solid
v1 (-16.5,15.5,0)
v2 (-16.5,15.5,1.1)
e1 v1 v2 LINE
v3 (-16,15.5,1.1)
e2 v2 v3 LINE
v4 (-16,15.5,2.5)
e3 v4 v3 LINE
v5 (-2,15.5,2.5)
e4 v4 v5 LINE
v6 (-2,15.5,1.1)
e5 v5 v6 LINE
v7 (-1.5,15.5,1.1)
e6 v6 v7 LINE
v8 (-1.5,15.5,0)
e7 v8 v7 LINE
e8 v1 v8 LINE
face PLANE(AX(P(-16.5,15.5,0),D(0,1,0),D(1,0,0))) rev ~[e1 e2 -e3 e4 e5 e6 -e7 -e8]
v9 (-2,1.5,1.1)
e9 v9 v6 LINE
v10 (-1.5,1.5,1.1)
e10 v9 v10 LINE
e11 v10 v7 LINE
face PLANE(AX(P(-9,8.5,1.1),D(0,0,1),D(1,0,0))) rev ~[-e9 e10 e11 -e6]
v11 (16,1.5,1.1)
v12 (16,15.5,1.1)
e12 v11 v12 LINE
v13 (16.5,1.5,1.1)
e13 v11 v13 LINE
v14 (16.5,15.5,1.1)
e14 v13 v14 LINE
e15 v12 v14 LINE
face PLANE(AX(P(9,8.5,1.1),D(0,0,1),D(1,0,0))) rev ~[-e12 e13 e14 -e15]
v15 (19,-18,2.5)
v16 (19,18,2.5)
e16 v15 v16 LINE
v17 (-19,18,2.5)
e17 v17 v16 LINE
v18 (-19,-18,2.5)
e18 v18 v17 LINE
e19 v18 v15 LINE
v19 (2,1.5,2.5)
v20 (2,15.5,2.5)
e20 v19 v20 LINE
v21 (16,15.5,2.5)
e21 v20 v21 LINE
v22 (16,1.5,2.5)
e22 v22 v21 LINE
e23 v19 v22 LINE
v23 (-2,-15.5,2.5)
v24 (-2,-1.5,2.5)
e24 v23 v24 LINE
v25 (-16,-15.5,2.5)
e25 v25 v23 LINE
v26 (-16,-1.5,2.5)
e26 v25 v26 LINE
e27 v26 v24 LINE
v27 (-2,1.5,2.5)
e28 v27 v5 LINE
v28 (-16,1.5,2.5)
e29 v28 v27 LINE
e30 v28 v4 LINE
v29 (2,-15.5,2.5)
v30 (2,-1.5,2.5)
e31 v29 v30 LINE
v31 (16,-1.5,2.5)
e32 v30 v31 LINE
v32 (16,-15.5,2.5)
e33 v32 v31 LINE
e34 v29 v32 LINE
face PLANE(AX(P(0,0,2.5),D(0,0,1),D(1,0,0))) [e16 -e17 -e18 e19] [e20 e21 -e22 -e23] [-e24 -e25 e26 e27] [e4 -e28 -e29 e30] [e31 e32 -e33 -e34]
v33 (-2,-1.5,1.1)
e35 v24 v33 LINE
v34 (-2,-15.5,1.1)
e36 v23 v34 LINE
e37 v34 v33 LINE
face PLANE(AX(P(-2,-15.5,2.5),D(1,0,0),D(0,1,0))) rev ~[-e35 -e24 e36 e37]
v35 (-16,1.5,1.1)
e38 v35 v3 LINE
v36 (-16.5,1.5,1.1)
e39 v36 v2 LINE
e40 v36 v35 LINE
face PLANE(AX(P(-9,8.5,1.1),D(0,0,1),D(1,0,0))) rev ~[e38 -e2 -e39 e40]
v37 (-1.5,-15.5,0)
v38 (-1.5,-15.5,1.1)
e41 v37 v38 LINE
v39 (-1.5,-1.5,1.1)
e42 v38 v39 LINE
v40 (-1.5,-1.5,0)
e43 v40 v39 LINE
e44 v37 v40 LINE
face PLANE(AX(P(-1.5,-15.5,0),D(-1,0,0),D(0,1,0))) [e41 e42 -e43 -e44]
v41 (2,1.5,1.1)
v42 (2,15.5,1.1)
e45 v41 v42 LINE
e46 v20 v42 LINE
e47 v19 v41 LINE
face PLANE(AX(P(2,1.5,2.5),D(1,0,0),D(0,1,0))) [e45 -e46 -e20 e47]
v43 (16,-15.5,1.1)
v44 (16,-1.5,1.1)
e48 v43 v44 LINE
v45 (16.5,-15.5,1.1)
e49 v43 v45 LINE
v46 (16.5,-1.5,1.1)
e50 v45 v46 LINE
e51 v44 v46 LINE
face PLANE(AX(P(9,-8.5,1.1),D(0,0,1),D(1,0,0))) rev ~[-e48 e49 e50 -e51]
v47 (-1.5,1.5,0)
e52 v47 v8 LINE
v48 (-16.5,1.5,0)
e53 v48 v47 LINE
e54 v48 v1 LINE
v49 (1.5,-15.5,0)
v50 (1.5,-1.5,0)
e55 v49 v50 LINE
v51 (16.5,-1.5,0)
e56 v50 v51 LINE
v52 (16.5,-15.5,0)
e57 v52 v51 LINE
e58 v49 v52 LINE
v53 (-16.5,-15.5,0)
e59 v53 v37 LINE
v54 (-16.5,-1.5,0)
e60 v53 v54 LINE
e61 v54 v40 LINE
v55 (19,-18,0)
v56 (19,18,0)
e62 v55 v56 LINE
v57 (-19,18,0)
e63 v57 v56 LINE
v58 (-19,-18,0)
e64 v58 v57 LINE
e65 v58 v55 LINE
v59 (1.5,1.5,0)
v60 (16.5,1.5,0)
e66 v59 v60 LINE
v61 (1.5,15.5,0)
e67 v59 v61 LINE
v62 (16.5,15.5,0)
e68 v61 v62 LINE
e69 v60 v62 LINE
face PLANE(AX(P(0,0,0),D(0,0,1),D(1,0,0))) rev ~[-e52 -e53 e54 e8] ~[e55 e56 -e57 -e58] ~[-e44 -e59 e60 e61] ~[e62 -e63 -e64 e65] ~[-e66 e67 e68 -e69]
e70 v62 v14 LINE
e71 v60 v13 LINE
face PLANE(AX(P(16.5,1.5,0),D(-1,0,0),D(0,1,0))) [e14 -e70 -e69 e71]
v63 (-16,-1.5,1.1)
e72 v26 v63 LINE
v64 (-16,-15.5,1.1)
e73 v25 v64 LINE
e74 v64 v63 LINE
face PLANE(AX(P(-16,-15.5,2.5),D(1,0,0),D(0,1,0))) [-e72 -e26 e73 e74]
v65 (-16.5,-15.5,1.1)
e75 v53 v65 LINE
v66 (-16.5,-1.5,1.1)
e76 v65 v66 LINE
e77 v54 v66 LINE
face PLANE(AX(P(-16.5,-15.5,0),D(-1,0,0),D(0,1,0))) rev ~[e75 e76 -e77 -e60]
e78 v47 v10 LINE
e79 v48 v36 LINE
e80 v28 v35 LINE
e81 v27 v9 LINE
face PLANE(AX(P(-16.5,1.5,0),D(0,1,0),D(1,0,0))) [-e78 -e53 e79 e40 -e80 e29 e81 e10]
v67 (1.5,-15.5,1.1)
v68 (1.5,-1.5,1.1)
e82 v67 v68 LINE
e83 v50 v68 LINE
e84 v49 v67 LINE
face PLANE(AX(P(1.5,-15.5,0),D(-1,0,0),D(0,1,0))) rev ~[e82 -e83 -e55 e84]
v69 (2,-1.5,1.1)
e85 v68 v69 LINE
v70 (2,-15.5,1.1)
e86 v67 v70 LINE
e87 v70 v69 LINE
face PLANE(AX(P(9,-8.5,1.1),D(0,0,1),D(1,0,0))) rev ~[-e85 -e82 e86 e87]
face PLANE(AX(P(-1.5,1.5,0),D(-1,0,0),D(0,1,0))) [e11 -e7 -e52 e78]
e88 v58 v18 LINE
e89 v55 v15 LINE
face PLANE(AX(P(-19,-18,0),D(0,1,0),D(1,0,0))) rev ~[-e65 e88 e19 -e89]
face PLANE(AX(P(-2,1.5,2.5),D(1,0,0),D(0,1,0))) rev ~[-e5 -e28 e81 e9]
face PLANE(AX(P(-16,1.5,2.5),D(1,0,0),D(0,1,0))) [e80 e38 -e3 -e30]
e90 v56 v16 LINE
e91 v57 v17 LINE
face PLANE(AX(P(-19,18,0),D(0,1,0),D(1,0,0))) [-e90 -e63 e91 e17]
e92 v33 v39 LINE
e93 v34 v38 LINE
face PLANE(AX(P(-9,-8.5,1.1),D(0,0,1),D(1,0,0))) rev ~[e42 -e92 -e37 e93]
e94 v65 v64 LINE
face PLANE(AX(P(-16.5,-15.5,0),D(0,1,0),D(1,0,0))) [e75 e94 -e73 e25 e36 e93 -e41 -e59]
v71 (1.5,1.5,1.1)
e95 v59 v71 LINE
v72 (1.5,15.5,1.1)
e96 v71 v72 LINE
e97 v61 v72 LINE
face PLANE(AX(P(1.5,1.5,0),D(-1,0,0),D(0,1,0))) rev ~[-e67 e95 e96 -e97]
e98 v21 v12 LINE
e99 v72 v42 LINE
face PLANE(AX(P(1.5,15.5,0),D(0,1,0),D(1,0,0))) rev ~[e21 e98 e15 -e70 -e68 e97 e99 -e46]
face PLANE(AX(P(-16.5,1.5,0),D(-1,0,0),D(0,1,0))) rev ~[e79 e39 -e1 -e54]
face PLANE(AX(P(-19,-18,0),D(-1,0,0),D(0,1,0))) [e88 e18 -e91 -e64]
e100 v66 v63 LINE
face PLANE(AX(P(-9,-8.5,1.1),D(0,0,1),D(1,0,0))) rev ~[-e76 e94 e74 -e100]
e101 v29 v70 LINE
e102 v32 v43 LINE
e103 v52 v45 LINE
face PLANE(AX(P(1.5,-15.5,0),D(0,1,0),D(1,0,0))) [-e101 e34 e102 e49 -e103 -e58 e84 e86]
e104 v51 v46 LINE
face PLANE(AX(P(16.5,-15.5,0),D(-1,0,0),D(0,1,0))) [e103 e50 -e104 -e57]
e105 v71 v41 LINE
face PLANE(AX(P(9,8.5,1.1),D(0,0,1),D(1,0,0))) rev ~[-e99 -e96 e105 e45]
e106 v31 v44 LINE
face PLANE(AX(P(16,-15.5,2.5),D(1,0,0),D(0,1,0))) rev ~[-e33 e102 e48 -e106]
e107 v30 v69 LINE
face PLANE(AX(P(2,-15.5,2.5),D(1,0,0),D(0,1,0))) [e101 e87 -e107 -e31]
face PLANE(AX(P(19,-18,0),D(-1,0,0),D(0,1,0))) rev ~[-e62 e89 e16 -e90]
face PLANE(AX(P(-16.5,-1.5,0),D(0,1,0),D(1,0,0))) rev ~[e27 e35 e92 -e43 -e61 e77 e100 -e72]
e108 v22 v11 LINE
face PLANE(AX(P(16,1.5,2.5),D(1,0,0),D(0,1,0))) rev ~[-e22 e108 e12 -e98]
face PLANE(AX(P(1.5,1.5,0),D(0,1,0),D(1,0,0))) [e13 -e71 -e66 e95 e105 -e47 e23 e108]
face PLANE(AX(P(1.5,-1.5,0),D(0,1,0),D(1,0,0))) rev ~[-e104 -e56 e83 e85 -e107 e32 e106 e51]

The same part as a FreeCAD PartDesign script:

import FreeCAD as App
import Part
import Sketcher
from FreeCAD import Vector
Q = App.Units.Quantity


def add_polygon(sketch, points):
    """Adds a closed chain of lines whose ends are joined by coincident constraints."""
    first, n = sketch.GeometryCount, len(points)
    for a, b in zip(points, points[1:] + points[:1]):
        sketch.addGeometry(Part.LineSegment(App.Vector(*a, 0), App.Vector(*b, 0)), False)
    for i in range(n):
        sketch.addConstraint(Sketcher.Constraint("Coincident", first + i, 2, first + (i + 1) % n, 1))

doc = App.newDocument("Part")
body = doc.addObject("PartDesign::Body", "Body")

# Sketch on XY plane
sketch1 = body.newObject("Sketcher::SketchObject", "Sketch")
sketch1.AttachmentSupport = (doc.getObject("XY_Plane"), [""])
sketch1.MapMode = "FlatFace"
add_polygon(sketch1, [(-19, 18), (-19, -18), (19, -18), (19, 18)])  # lines 0-3
sketch1.addConstraint(Sketcher.Constraint("Vertical", 0))
sketch1.addConstraint(Sketcher.Constraint("Horizontal", 1))
sketch1.addConstraint(Sketcher.Constraint("Vertical", 2))
sketch1.addConstraint(Sketcher.Constraint("Horizontal", 3))
sketch1.addConstraint(Sketcher.Constraint("Symmetric", 0, 2, 2, 2, -1, 1))
sketch1.addConstraint(Sketcher.Constraint("DistanceX", 1, 1, 1, 2, Q("38 mm")))
sketch1.addConstraint(Sketcher.Constraint("DistanceY", 0, 2, 0, 1, Q("36 mm")))
pad1 = body.newObject("PartDesign::Pad", "Pad")
pad1.Profile = sketch1
pad1.Length = 2.5

# Sketch on XY plane
sketch2 = body.newObject("Sketcher::SketchObject", "Sketch001")
sketch2.AttachmentSupport = (doc.getObject("XY_Plane"), [""])
sketch2.MapMode = "FlatFace"
sketch2.AttachmentOffset = App.Placement(Vector(0, 0, 2.5), App.Rotation())
add_polygon(sketch2, [(-16, 16), (-16, 2), (-2, 2), (-2, 16)])  # lines 0-3
add_polygon(sketch2, [(2, 16), (2, 2), (16, 2), (16, 16)])  # lines 4-7
add_polygon(sketch2, [(2, -2), (2, -16), (16, -16), (16, -2)])  # lines 8-11
add_polygon(sketch2, [(-16, -2), (-16, -16), (-2, -16), (-2, -2)])  # lines 12-15
sketch2.addConstraint(Sketcher.Constraint("Vertical", 0))
sketch2.addConstraint(Sketcher.Constraint("Horizontal", 1))
sketch2.addConstraint(Sketcher.Constraint("Vertical", 2))
sketch2.addConstraint(Sketcher.Constraint("Horizontal", 3))
sketch2.addConstraint(Sketcher.Constraint("Vertical", 4))
sketch2.addConstraint(Sketcher.Constraint("Horizontal", 5))
sketch2.addConstraint(Sketcher.Constraint("Vertical", 6))
sketch2.addConstraint(Sketcher.Constraint("Horizontal", 7))
sketch2.addConstraint(Sketcher.Constraint("Vertical", 8))
sketch2.addConstraint(Sketcher.Constraint("Horizontal", 9))
sketch2.addConstraint(Sketcher.Constraint("Vertical", 10))
sketch2.addConstraint(Sketcher.Constraint("Horizontal", 11))
sketch2.addConstraint(Sketcher.Constraint("Vertical", 12))
sketch2.addConstraint(Sketcher.Constraint("Horizontal", 13))
sketch2.addConstraint(Sketcher.Constraint("Vertical", 14))
sketch2.addConstraint(Sketcher.Constraint("Horizontal", 15))
sketch2.addConstraint(Sketcher.Constraint("Symmetric", 2, 2, 8, 2, -1, 1))
sketch2.addConstraint(Sketcher.Constraint("Symmetric", 0, 2, 10, 2, -1, 1))
sketch2.addConstraint(Sketcher.Constraint("Symmetric", 6, 2, 12, 2, -1, 1))
sketch2.addConstraint(Sketcher.Constraint("Symmetric", 4, 2, 14, 2, -1, 1))
sketch2.addConstraint(Sketcher.Constraint("Symmetric", 1, 2, 4, 2, -2))
sketch2.addConstraint(Sketcher.Constraint("Symmetric", 3, 2, 6, 2, -2))
sketch2.addConstraint(Sketcher.Constraint("Equal", 15, 0))
sketch2.addConstraint(Sketcher.Constraint("DistanceX", 1, 1, 1, 2, Q("14 mm")))
sketch2.addConstraint(Sketcher.Constraint("DistanceX", 0, 2, -1, 1, Q("16 mm")))
sketch2.addConstraint(Sketcher.Constraint("DistanceY", 8, 2, 4, 2, Q("17 mm")))
pocket1 = body.newObject("PartDesign::Pocket", "Pocket")
pocket1.Profile = sketch2
pocket1.Length = 1.4

# Sketch on XY plane
sketch3 = body.newObject("Sketcher::SketchObject", "Sketch002")
sketch3.AttachmentSupport = (doc.getObject("XY_Plane"), [""])
sketch3.MapMode = "FlatFace"
add_polygon(sketch3, [(2, -2), (2, -16), (16, -16), (16, -2)])  # lines 0-3
add_polygon(sketch3, [(2, 16), (2, 2), (16, 2), (16, 16)])  # lines 4-7
add_polygon(sketch3, [(-16, 16), (-16, 2), (-2, 2), (-2, 16)])  # lines 8-11
add_polygon(sketch3, [(-16, -2), (-16, -16), (-2, -16), (-2, -2)])  # lines 12-15
sketch3.addConstraint(Sketcher.Constraint("Vertical", 0))
sketch3.addConstraint(Sketcher.Constraint("Horizontal", 1))
sketch3.addConstraint(Sketcher.Constraint("Vertical", 2))
sketch3.addConstraint(Sketcher.Constraint("Horizontal", 3))
sketch3.addConstraint(Sketcher.Constraint("Vertical", 4))
sketch3.addConstraint(Sketcher.Constraint("Horizontal", 5))
sketch3.addConstraint(Sketcher.Constraint("Vertical", 6))
sketch3.addConstraint(Sketcher.Constraint("Horizontal", 7))
sketch3.addConstraint(Sketcher.Constraint("Vertical", 8))
sketch3.addConstraint(Sketcher.Constraint("Horizontal", 9))
sketch3.addConstraint(Sketcher.Constraint("Vertical", 10))
sketch3.addConstraint(Sketcher.Constraint("Horizontal", 11))
sketch3.addConstraint(Sketcher.Constraint("Vertical", 12))
sketch3.addConstraint(Sketcher.Constraint("Horizontal", 13))
sketch3.addConstraint(Sketcher.Constraint("Vertical", 14))
sketch3.addConstraint(Sketcher.Constraint("Horizontal", 15))
sketch3.addConstraint(Sketcher.Constraint("Symmetric", 2, 2, 8, 2, -1, 1))
sketch3.addConstraint(Sketcher.Constraint("Symmetric", 0, 2, 10, 2, -1, 1))
sketch3.addConstraint(Sketcher.Constraint("Symmetric", 6, 2, 12, 2, -1, 1))
sketch3.addConstraint(Sketcher.Constraint("Symmetric", 4, 2, 14, 2, -1, 1))
sketch3.addConstraint(Sketcher.Constraint("Symmetric", 5, 2, 8, 2, -2))
sketch3.addConstraint(Sketcher.Constraint("Symmetric", 7, 2, 10, 2, -2))
sketch3.addConstraint(Sketcher.Constraint("DistanceX", 1, 1, 1, 2, Q("15 mm")))
sketch3.addConstraint(Sketcher.Constraint("DistanceY", 0, 2, 0, 1, Q("14 mm")))
sketch3.addConstraint(Sketcher.Constraint("DistanceY", 3, 2, 4, 2, Q("3 mm")))
sketch3.addConstraint(Sketcher.Constraint("DistanceX", 8, 2, 4, 2, Q("18 mm")))
pocket2 = body.newObject("PartDesign::Pocket", "Pocket001")
pocket2.Profile = sketch3
pocket2.Length = 1.1
pocket2.Reversed = True

doc.recompute()
